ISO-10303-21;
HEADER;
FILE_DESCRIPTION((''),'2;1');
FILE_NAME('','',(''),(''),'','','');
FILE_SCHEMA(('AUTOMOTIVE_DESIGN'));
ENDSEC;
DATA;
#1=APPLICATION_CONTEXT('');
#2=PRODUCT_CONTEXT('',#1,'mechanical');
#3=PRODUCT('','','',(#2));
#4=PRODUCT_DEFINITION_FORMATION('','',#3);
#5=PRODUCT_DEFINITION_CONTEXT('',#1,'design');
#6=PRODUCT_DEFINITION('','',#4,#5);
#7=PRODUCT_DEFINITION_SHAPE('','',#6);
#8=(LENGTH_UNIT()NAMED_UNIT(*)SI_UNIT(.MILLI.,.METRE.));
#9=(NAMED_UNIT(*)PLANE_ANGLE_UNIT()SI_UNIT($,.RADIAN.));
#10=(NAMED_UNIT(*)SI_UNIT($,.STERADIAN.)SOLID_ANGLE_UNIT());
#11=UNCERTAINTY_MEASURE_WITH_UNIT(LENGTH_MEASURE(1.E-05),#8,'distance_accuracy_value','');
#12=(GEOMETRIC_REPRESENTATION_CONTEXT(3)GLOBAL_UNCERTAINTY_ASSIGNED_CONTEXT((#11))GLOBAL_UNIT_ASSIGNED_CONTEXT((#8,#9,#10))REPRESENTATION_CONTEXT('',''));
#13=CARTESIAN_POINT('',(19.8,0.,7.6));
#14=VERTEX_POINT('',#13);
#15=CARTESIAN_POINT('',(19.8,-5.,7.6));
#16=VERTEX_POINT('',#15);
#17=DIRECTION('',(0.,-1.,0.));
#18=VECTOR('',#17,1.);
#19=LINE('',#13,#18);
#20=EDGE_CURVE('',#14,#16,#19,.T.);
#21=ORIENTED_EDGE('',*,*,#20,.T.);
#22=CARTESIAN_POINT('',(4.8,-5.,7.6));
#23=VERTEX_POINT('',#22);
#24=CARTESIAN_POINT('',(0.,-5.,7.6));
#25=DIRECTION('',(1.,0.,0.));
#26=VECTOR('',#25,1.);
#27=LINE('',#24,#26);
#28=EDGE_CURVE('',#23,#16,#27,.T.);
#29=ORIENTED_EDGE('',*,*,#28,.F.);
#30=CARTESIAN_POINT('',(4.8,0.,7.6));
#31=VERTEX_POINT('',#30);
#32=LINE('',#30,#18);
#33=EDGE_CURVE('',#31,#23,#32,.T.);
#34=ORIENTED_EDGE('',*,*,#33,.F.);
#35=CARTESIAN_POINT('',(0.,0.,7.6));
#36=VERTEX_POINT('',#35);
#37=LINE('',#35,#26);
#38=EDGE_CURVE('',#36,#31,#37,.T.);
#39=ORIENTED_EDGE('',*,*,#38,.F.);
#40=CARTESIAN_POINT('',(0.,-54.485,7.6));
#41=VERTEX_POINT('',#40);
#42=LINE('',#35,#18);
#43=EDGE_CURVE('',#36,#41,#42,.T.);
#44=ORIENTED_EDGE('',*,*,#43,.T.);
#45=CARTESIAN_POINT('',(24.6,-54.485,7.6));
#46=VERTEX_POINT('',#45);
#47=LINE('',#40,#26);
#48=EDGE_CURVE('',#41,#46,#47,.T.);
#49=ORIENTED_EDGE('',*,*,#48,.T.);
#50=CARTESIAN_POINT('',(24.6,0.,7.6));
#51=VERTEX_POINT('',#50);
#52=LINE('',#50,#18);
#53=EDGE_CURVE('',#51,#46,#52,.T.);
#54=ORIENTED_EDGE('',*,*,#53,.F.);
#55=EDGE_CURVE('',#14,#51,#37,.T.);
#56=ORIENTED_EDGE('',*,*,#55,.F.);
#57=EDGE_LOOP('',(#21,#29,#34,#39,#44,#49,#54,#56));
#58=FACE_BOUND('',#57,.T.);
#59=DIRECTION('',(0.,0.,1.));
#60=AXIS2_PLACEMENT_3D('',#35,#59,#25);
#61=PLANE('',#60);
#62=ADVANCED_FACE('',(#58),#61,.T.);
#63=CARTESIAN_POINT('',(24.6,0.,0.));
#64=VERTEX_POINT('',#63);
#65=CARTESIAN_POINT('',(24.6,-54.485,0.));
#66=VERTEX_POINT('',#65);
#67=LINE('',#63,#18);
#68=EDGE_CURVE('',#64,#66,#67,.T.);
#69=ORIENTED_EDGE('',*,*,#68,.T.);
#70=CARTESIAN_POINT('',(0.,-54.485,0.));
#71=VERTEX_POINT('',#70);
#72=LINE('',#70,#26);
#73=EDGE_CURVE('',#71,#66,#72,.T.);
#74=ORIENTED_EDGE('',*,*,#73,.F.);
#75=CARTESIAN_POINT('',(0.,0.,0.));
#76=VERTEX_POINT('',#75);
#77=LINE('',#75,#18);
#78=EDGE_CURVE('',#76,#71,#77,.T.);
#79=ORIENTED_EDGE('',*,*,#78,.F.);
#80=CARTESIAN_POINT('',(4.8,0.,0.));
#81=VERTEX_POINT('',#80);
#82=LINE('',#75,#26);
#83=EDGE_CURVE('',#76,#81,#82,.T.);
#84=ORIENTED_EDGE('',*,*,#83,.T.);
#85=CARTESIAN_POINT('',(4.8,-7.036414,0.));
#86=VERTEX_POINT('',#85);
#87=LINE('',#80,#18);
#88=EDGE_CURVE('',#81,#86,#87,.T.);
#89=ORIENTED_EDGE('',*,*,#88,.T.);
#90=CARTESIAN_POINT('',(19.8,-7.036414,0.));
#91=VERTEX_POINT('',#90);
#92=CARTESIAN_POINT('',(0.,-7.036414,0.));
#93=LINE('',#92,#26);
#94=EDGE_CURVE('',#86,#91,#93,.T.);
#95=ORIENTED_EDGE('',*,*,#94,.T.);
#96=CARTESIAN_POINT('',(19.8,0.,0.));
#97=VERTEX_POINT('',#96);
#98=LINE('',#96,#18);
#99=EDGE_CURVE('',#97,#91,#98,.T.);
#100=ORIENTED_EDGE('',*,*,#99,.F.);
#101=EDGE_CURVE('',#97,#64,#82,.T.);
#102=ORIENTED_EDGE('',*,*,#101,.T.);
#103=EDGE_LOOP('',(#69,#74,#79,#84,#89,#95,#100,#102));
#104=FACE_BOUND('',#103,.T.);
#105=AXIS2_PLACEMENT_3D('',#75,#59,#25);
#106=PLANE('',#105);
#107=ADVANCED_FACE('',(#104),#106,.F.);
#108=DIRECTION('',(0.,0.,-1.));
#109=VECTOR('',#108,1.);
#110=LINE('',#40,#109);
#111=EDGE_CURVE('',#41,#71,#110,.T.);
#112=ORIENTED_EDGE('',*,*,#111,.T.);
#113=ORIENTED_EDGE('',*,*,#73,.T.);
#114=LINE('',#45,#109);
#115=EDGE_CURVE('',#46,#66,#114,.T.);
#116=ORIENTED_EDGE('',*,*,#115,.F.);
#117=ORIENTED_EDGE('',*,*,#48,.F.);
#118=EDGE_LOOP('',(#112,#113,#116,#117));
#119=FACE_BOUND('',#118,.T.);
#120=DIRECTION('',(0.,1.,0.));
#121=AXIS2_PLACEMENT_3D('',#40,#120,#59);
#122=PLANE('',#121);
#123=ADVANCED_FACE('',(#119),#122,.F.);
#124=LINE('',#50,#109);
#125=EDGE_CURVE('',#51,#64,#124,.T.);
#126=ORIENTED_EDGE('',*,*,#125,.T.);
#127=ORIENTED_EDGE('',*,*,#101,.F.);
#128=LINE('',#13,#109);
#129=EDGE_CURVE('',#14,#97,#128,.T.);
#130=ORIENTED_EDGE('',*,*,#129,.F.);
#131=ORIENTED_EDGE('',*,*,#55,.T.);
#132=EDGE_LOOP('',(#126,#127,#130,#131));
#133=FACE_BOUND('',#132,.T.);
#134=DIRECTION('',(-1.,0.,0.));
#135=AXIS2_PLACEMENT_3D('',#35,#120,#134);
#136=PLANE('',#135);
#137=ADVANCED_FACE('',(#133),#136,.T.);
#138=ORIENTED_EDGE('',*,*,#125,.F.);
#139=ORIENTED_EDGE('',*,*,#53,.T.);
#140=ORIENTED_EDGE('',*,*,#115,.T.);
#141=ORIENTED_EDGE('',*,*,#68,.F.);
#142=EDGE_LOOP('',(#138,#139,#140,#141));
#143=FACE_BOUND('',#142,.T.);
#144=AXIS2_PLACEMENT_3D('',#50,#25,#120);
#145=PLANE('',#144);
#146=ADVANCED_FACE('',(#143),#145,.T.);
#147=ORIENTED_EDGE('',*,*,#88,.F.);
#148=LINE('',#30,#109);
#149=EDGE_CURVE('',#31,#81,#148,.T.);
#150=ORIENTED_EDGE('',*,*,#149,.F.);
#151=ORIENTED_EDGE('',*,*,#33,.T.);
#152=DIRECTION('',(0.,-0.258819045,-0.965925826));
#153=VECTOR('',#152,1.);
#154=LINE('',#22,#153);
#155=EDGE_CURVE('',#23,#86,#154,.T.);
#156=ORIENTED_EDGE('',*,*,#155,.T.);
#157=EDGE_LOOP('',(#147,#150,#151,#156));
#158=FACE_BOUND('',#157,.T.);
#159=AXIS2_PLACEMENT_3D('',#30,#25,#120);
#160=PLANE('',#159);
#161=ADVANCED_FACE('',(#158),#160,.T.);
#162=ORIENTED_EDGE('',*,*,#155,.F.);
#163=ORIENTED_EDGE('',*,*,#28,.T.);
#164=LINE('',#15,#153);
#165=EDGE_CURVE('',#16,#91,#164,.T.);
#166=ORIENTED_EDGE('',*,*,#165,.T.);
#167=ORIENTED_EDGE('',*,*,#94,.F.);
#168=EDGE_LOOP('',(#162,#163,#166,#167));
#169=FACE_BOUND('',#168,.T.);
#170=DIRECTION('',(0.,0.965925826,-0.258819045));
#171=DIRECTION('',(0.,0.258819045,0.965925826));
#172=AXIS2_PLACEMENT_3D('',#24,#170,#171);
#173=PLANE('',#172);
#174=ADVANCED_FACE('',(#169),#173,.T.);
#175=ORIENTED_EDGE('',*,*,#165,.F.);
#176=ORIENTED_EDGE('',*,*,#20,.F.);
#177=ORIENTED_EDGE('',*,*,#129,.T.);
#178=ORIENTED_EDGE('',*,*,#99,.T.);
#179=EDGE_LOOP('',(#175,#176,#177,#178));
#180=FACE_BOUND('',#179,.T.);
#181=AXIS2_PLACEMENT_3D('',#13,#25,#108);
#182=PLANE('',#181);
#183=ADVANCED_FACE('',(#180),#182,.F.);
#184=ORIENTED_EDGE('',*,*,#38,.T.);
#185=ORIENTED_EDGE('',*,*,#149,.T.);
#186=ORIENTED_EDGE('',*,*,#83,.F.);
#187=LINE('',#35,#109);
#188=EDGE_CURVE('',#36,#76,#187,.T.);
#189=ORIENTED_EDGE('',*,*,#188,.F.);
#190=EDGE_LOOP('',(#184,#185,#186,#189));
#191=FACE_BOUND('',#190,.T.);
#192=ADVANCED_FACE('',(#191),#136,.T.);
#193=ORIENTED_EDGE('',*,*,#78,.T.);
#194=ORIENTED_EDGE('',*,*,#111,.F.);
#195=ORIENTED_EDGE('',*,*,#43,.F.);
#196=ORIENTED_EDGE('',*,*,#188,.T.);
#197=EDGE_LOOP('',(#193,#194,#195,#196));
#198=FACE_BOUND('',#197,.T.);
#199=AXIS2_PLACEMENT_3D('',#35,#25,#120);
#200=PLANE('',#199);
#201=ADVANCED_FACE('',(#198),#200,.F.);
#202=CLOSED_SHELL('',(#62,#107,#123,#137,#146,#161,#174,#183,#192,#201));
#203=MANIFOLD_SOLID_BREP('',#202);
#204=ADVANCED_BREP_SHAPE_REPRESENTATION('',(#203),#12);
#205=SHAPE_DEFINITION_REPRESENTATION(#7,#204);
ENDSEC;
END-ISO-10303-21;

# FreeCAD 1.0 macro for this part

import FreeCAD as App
import Part
import Sketcher
Q = App.Units.Quantity


def faces_at(feature, points):
    """Names of the faces that lie closest to the given points."""
    faces = feature.Shape.Faces
    near = lambda p: min(range(len(faces)), key=lambda i: faces[i].distToShape(Part.Vertex(*p))[0])
    return sorted({f"Face{near(p) + 1}" for p in points})

doc = App.newDocument("Part")
body = doc.addObject("PartDesign::Body", "Body")

# Sketch on XY plane
sketch1 = body.newObject("Sketcher::SketchObject", "Sketch")
sketch1.AttachmentSupport = (doc.getObject("XY_Plane"), [""])
sketch1.MapMode = "FlatFace"
sketch1.addGeometry(Part.LineSegment(App.Vector(4.8, 0, 0), App.Vector(0, 0, 0)), False)
sketch1.addGeometry(Part.LineSegment(App.Vector(0, 0, 0), App.Vector(0, -54.5, 0)), False)
sketch1.addGeometry(Part.LineSegment(App.Vector(0, -54.5, 0), App.Vector(24.6, -54.5, 0)), False)
sketch1.addGeometry(Part.LineSegment(App.Vector(24.6, -54.5, 0), App.Vector(24.6, 0, 0)), False)
sketch1.addGeometry(Part.LineSegment(App.Vector(24.6, 0, 0), App.Vector(19.8, 0, 0)), False)
sketch1.addGeometry(Part.LineSegment(App.Vector(19.8, 0, 0), App.Vector(19.8, -5, 0)), False)
sketch1.addGeometry(Part.LineSegment(App.Vector(19.8, -5, 0), App.Vector(4.8, -5, 0)), False)
sketch1.addGeometry(Part.LineSegment(App.Vector(4.8, -5, 0), App.Vector(4.8, 0, 0)), False)
sketch1.addConstraint(Sketcher.Constraint("Coincident", 0, 2, 1, 1))
sketch1.addConstraint(Sketcher.Constraint("Coincident", 1, 2, 2, 1))
sketch1.addConstraint(Sketcher.Constraint("Coincident", 2, 2, 3, 1))
sketch1.addConstraint(Sketcher.Constraint("Coincident", 3, 2, 4, 1))
sketch1.addConstraint(Sketcher.Constraint("Coincident", 4, 2, 5, 1))
sketch1.addConstraint(Sketcher.Constraint("Coincident", 5, 2, 6, 1))
sketch1.addConstraint(Sketcher.Constraint("Coincident", 6, 2, 7, 1))
sketch1.addConstraint(Sketcher.Constraint("Coincident", 7, 2, 0, 1))
sketch1.addConstraint(Sketcher.Constraint("Horizontal", 0))
sketch1.addConstraint(Sketcher.Constraint("Vertical", 1))
sketch1.addConstraint(Sketcher.Constraint("Horizontal", 2))
sketch1.addConstraint(Sketcher.Constraint("Vertical", 3))
sketch1.addConstraint(Sketcher.Constraint("Horizontal", 4))
sketch1.addConstraint(Sketcher.Constraint("Vertical", 5))
sketch1.addConstraint(Sketcher.Constraint("Horizontal", 6))
sketch1.addConstraint(Sketcher.Constraint("Vertical", 7))
sketch1.addConstraint(Sketcher.Constraint("Coincident", 0, 2, -1, 1))
sketch1.addConstraint(Sketcher.Constraint("PointOnObject", 3, 2, -1))
sketch1.addConstraint(Sketcher.Constraint("Equal", 0, 4))
sketch1.addConstraint(Sketcher.Constraint("DistanceX", 6, 2, 6, 1, Q("15 mm")))
sketch1.addConstraint(Sketcher.Constraint("DistanceY", 5, 2, 5, 1, Q("5 mm")))
sketch1.addConstraint(Sketcher.Constraint("DistanceX", 0, 2, 0, 1, Q("4.8 mm")))
sketch1.addConstraint(Sketcher.Constraint("DistanceY", 1, 2, 1, 1, Q("54.485 mm")))
pad1 = body.newObject("PartDesign::Pad", "Pad")
pad1.Profile = sketch1
pad1.Length = 7.6
doc.recompute()

datumplane = body.newObject("PartDesign::Plane", "DatumPlane")
datumplane.AttachmentSupport = (doc.getObject("XY_Plane"), [""])
datumplane.MapMode = "FlatFace"
datumplane.AttachmentOffset = App.Placement(App.Vector(0, 0, 7.6), App.Rotation())
draft = body.newObject("PartDesign::Draft", "Draft")
draft.Base = (pad1, faces_at(pad1, [(12.3, -5, 3.8)]))
draft.NeutralPlane = (datumplane, [""])
draft.Angle = 15
draft.Reversed = True

doc.recompute()
